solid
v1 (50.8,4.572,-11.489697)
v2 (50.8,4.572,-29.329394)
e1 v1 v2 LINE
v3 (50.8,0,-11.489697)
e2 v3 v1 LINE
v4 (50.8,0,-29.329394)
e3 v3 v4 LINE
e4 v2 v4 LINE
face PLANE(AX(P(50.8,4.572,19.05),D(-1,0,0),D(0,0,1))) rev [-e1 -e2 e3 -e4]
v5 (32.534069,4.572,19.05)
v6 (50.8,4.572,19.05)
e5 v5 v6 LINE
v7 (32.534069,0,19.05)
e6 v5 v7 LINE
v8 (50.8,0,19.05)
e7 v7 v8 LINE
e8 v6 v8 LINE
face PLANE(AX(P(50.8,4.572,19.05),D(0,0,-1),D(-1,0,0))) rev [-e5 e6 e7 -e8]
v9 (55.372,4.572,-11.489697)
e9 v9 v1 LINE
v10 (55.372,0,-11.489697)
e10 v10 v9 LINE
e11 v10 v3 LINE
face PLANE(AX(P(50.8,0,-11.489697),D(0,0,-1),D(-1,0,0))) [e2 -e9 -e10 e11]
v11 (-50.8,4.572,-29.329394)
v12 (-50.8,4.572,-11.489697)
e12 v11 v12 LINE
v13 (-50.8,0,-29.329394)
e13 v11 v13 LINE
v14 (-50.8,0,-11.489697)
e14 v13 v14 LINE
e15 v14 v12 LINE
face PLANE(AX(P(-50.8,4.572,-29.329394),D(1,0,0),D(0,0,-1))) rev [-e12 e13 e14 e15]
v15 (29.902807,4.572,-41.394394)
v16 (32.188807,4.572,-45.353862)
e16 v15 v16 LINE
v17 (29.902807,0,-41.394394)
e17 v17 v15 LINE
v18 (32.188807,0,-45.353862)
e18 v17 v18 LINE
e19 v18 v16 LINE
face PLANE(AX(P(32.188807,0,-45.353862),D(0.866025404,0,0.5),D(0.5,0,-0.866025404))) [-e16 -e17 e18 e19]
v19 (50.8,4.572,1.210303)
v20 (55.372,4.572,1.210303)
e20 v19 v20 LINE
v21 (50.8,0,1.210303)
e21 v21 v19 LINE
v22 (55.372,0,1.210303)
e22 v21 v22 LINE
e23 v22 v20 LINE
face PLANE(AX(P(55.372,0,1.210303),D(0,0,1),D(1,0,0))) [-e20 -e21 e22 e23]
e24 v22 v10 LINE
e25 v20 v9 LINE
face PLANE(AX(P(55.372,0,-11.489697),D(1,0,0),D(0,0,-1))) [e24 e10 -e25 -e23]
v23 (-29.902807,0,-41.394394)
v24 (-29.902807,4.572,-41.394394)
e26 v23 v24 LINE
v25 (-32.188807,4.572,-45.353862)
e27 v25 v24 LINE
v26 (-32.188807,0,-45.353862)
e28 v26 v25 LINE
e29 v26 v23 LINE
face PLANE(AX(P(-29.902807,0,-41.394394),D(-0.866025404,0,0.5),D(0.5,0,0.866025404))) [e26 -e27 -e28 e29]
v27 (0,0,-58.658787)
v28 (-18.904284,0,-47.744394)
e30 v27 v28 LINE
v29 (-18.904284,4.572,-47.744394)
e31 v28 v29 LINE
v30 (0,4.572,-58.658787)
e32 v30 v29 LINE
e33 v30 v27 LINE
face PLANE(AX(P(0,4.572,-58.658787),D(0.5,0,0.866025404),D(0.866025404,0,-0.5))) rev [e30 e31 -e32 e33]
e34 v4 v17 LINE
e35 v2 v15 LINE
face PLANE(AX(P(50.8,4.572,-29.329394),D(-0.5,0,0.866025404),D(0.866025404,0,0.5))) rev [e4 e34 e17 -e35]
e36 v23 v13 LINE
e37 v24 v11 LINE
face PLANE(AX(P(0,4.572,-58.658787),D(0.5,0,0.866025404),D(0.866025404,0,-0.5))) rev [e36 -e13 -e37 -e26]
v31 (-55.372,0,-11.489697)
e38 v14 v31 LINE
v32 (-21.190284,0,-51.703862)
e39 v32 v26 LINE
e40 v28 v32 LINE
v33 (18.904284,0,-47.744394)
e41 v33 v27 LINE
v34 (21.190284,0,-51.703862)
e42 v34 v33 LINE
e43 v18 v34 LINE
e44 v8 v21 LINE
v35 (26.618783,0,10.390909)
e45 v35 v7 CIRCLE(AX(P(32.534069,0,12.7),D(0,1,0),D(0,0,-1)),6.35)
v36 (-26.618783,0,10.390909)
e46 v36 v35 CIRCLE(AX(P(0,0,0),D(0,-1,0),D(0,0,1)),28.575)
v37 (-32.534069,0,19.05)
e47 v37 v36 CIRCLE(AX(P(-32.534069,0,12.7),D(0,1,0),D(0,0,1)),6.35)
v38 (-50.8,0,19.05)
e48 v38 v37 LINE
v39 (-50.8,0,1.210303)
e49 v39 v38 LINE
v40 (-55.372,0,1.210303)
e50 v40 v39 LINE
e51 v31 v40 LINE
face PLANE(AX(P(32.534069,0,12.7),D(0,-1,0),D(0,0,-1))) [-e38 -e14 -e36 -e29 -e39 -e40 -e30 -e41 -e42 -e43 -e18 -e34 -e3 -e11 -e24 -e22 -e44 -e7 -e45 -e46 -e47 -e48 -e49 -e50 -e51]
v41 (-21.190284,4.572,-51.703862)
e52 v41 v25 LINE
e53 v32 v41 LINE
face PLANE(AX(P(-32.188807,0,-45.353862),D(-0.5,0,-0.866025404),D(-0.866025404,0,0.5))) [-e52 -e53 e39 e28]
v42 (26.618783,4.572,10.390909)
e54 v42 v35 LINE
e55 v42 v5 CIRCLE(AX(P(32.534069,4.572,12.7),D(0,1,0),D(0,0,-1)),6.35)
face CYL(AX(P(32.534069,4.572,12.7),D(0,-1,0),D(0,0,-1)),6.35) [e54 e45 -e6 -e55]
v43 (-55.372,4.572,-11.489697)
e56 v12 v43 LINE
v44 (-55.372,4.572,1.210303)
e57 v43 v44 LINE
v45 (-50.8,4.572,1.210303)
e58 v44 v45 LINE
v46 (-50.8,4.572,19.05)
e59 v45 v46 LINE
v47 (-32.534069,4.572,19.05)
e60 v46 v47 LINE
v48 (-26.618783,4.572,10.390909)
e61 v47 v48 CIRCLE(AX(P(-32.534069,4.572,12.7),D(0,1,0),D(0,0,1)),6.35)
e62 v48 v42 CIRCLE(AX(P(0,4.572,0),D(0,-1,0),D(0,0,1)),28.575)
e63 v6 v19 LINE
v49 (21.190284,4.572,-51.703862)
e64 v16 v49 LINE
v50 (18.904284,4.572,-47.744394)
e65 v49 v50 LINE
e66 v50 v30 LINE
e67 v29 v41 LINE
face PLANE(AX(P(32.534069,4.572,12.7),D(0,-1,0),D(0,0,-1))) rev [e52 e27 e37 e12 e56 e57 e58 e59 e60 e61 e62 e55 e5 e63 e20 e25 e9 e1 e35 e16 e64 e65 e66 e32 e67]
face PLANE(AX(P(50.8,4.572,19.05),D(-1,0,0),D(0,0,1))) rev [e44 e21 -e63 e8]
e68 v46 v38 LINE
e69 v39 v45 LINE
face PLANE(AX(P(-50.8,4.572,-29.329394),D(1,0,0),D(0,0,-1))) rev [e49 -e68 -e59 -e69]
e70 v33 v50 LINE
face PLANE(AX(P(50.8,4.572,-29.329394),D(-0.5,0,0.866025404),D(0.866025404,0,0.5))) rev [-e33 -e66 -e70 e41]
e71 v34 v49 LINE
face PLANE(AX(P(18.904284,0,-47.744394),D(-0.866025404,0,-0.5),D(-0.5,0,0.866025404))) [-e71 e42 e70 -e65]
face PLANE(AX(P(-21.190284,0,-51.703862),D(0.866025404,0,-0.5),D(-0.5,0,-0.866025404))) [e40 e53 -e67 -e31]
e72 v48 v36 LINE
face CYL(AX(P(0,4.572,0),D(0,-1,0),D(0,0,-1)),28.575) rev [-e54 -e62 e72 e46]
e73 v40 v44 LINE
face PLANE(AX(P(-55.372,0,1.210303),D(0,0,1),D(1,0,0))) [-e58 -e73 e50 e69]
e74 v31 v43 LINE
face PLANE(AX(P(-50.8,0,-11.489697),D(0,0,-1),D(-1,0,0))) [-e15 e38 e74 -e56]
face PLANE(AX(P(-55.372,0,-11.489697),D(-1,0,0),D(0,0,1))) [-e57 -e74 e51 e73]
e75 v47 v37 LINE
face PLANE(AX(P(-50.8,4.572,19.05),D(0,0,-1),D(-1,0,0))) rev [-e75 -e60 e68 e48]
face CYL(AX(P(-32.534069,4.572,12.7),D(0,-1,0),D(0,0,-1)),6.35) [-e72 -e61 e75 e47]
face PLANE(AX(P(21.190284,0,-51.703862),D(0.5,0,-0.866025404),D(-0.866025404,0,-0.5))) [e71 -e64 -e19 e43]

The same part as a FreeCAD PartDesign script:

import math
import FreeCAD as App
import Part
import Sketcher
Q = App.Units.Quantity


def add_polygon(sketch, points):
    """Adds a closed chain of lines whose ends are joined by coincident constraints."""
    first, n = sketch.GeometryCount, len(points)
    for a, b in zip(points, points[1:] + points[:1]):
        sketch.addGeometry(Part.LineSegment(App.Vector(*a, 0), App.Vector(*b, 0)), False)
    for i in range(n):
        sketch.addConstraint(Sketcher.Constraint("Coincident", first + i, 2, first + (i + 1) % n, 1))

doc = App.newDocument("Part")
body = doc.addObject("PartDesign::Body", "Body")

# Sketch on XZ plane
sketch1 = body.newObject("Sketcher::SketchObject", "Sketch")
sketch1.AttachmentSupport = (doc.getObject("XZ_Plane"), [""])
sketch1.MapMode = "FlatFace"
sketch1.addGeometry([
    Part.LineSegment(App.Vector(-51, 19, 0), App.Vector(-33, 19, 0)),  # 0
    Part.ArcOfCircle(Part.Circle(App.Vector(-33, 13, 0), App.Vector(0, 0, 1), 6), math.radians(-21), math.radians(90)),  # 1
    Part.ArcOfCircle(Part.Circle(App.Vector(0, 0, 0), App.Vector(0, 0, 1), 29), math.radians(159), math.radians(381)),  # 2
    Part.ArcOfCircle(Part.Circle(App.Vector(33, 13, 0), App.Vector(0, 0, 1), 6), math.radians(90), math.radians(201)),  # 3
    Part.LineSegment(App.Vector(33, 19, 0), App.Vector(51, 19, 0)),  # 4
    Part.LineSegment(App.Vector(51, 19, 0), App.Vector(51, -29, 0)),  # 5
    Part.LineSegment(App.Vector(51, -29, 0), App.Vector(0, -59, 0)),  # 6
    Part.LineSegment(App.Vector(0, -59, 0), App.Vector(-51, -29, 0)),  # 7
    Part.LineSegment(App.Vector(-51, -29, 0), App.Vector(-51, 19, 0)),  # 8
], False)
sketch1.addConstraint([
    Sketcher.Constraint("Tangent", 0, 2, 1, 2),
    Sketcher.Constraint("Tangent", 1, 1, 2, 1),
    Sketcher.Constraint("Tangent", 2, 2, 3, 2),
    Sketcher.Constraint("Tangent", 3, 1, 4, 1),
    Sketcher.Constraint("Coincident", 4, 2, 5, 1),
    Sketcher.Constraint("Coincident", 5, 2, 6, 1),
    Sketcher.Constraint("Coincident", 6, 2, 7, 1),
    Sketcher.Constraint("Coincident", 7, 2, 8, 1),
    Sketcher.Constraint("Coincident", 8, 2, 0, 1),
    Sketcher.Constraint("Horizontal", 0),
    Sketcher.Constraint("Horizontal", 4),
    Sketcher.Constraint("Vertical", 5),
    Sketcher.Constraint("Vertical", 8),
    Sketcher.Constraint("Coincident", 2, 3, -1, 1),
    Sketcher.Constraint("Equal", 1, 3),
    Sketcher.Constraint("Symmetric", 5, 2, 7, 2, -2),
    Sketcher.Constraint("PointOnObject", 6, 2, -2),
    Sketcher.Constraint("Horizontal", 1, 3, 3, 3),
    Sketcher.Constraint("Radius", 1, Q("0.25 in")),
    Sketcher.Constraint("DistanceX", -1, 1, 4, 2, Q("2 in")),
    Sketcher.Constraint("Angle", 6, Q("-150 deg")),
    Sketcher.Constraint("Radius", 2, Q("1.125 in")),
    Sketcher.Constraint("DistanceY", -1, 1, 1, 3, Q("0.5 in")),
    Sketcher.Constraint("DistanceY", 5, 2, 5, 1, 48.379394),
])
pad1 = body.newObject("PartDesign::Pad", "Pad")
pad1.Profile = sketch1
pad1.Length = Q("0.18 in")
pad1.Reversed = True

# Sketch on XZ plane
sketch2 = body.newObject("Sketcher::SketchObject", "Sketch001")
sketch2.AttachmentSupport = (doc.getObject("XZ_Plane"), [""])
sketch2.MapMode = "FlatFace"
sketch2.AttachmentOffset = App.Placement(App.Vector(0, 0, -0.18 * 25.4), App.Rotation())
add_polygon(sketch2, [(-55.4, -11.5), (-55.4, 1.2), (-50.8, 1.2), (-50.8, -11.5)])  # lines 0-3
add_polygon(sketch2, [(-32.2, -45.4), (-29.9, -41.4), (-18.9, -47.7), (-21.2, -51.7)])  # lines 4-7
add_polygon(sketch2, [(21.2, -51.7), (18.9, -47.7), (29.9, -41.4), (32.2, -45.4)])  # lines 8-11
add_polygon(sketch2, [(50.8, -11.5), (50.8, 1.2), (55.4, 1.2), (55.4, -11.5)])  # lines 12-15
sketch2.addConstraint([
    Sketcher.Constraint("Vertical", 0),
    Sketcher.Constraint("Horizontal", 1),
    Sketcher.Constraint("Vertical", 2),
    Sketcher.Constraint("Horizontal", 3),
    Sketcher.Constraint("Vertical", 12),
    Sketcher.Constraint("Horizontal", 13),
    Sketcher.Constraint("Vertical", 14),
    Sketcher.Constraint("Horizontal", 15),
    Sketcher.Constraint("Symmetric", 5, 2, 8, 2, -2),
    Sketcher.Constraint("Symmetric", 4, 2, 9, 2, -2),
    Sketcher.Constraint("Symmetric", 7, 2, 10, 2, -2),
    Sketcher.Constraint("Symmetric", 6, 2, 11, 2, -2),
    Sketcher.Constraint("Symmetric", 1, 2, 12, 2, -2),
    Sketcher.Constraint("Symmetric", 3, 2, 14, 2, -2),
    Sketcher.Constraint("Perpendicular", 4, 5),
    Sketcher.Constraint("Perpendicular", 5, 6),
    Sketcher.Constraint("Perpendicular", 6, 7),
    Sketcher.Constraint("DistanceY", 0, 1, 0, 2, Q("0.5 in")),
    Sketcher.Constraint("DistanceX", 1, 2, -1, 1, Q("2 in")),
    Sketcher.Constraint("Angle", 4, Q("60 deg")),
    Sketcher.Constraint("Distance", 5, Q("0.5 in")),
    Sketcher.Constraint("DistanceX", 1, 1, 1, 2, Q("0.18 in")),
    Sketcher.Constraint("Distance", 4, Q("0.18 in")),
    Sketcher.Constraint("DistanceY", 6, 2, -1, 1, 51.703862),
    Sketcher.Constraint("DistanceX", 5, 2, 8, 2, 37.808569),
    Sketcher.Constraint("DistanceY", -1, 1, 0, 2, 1.210303),
])
pad2 = body.newObject("PartDesign::Pad", "Pad001")
pad2.Profile = sketch2
pad2.Length = Q("0.18 in")

doc.recompute()
